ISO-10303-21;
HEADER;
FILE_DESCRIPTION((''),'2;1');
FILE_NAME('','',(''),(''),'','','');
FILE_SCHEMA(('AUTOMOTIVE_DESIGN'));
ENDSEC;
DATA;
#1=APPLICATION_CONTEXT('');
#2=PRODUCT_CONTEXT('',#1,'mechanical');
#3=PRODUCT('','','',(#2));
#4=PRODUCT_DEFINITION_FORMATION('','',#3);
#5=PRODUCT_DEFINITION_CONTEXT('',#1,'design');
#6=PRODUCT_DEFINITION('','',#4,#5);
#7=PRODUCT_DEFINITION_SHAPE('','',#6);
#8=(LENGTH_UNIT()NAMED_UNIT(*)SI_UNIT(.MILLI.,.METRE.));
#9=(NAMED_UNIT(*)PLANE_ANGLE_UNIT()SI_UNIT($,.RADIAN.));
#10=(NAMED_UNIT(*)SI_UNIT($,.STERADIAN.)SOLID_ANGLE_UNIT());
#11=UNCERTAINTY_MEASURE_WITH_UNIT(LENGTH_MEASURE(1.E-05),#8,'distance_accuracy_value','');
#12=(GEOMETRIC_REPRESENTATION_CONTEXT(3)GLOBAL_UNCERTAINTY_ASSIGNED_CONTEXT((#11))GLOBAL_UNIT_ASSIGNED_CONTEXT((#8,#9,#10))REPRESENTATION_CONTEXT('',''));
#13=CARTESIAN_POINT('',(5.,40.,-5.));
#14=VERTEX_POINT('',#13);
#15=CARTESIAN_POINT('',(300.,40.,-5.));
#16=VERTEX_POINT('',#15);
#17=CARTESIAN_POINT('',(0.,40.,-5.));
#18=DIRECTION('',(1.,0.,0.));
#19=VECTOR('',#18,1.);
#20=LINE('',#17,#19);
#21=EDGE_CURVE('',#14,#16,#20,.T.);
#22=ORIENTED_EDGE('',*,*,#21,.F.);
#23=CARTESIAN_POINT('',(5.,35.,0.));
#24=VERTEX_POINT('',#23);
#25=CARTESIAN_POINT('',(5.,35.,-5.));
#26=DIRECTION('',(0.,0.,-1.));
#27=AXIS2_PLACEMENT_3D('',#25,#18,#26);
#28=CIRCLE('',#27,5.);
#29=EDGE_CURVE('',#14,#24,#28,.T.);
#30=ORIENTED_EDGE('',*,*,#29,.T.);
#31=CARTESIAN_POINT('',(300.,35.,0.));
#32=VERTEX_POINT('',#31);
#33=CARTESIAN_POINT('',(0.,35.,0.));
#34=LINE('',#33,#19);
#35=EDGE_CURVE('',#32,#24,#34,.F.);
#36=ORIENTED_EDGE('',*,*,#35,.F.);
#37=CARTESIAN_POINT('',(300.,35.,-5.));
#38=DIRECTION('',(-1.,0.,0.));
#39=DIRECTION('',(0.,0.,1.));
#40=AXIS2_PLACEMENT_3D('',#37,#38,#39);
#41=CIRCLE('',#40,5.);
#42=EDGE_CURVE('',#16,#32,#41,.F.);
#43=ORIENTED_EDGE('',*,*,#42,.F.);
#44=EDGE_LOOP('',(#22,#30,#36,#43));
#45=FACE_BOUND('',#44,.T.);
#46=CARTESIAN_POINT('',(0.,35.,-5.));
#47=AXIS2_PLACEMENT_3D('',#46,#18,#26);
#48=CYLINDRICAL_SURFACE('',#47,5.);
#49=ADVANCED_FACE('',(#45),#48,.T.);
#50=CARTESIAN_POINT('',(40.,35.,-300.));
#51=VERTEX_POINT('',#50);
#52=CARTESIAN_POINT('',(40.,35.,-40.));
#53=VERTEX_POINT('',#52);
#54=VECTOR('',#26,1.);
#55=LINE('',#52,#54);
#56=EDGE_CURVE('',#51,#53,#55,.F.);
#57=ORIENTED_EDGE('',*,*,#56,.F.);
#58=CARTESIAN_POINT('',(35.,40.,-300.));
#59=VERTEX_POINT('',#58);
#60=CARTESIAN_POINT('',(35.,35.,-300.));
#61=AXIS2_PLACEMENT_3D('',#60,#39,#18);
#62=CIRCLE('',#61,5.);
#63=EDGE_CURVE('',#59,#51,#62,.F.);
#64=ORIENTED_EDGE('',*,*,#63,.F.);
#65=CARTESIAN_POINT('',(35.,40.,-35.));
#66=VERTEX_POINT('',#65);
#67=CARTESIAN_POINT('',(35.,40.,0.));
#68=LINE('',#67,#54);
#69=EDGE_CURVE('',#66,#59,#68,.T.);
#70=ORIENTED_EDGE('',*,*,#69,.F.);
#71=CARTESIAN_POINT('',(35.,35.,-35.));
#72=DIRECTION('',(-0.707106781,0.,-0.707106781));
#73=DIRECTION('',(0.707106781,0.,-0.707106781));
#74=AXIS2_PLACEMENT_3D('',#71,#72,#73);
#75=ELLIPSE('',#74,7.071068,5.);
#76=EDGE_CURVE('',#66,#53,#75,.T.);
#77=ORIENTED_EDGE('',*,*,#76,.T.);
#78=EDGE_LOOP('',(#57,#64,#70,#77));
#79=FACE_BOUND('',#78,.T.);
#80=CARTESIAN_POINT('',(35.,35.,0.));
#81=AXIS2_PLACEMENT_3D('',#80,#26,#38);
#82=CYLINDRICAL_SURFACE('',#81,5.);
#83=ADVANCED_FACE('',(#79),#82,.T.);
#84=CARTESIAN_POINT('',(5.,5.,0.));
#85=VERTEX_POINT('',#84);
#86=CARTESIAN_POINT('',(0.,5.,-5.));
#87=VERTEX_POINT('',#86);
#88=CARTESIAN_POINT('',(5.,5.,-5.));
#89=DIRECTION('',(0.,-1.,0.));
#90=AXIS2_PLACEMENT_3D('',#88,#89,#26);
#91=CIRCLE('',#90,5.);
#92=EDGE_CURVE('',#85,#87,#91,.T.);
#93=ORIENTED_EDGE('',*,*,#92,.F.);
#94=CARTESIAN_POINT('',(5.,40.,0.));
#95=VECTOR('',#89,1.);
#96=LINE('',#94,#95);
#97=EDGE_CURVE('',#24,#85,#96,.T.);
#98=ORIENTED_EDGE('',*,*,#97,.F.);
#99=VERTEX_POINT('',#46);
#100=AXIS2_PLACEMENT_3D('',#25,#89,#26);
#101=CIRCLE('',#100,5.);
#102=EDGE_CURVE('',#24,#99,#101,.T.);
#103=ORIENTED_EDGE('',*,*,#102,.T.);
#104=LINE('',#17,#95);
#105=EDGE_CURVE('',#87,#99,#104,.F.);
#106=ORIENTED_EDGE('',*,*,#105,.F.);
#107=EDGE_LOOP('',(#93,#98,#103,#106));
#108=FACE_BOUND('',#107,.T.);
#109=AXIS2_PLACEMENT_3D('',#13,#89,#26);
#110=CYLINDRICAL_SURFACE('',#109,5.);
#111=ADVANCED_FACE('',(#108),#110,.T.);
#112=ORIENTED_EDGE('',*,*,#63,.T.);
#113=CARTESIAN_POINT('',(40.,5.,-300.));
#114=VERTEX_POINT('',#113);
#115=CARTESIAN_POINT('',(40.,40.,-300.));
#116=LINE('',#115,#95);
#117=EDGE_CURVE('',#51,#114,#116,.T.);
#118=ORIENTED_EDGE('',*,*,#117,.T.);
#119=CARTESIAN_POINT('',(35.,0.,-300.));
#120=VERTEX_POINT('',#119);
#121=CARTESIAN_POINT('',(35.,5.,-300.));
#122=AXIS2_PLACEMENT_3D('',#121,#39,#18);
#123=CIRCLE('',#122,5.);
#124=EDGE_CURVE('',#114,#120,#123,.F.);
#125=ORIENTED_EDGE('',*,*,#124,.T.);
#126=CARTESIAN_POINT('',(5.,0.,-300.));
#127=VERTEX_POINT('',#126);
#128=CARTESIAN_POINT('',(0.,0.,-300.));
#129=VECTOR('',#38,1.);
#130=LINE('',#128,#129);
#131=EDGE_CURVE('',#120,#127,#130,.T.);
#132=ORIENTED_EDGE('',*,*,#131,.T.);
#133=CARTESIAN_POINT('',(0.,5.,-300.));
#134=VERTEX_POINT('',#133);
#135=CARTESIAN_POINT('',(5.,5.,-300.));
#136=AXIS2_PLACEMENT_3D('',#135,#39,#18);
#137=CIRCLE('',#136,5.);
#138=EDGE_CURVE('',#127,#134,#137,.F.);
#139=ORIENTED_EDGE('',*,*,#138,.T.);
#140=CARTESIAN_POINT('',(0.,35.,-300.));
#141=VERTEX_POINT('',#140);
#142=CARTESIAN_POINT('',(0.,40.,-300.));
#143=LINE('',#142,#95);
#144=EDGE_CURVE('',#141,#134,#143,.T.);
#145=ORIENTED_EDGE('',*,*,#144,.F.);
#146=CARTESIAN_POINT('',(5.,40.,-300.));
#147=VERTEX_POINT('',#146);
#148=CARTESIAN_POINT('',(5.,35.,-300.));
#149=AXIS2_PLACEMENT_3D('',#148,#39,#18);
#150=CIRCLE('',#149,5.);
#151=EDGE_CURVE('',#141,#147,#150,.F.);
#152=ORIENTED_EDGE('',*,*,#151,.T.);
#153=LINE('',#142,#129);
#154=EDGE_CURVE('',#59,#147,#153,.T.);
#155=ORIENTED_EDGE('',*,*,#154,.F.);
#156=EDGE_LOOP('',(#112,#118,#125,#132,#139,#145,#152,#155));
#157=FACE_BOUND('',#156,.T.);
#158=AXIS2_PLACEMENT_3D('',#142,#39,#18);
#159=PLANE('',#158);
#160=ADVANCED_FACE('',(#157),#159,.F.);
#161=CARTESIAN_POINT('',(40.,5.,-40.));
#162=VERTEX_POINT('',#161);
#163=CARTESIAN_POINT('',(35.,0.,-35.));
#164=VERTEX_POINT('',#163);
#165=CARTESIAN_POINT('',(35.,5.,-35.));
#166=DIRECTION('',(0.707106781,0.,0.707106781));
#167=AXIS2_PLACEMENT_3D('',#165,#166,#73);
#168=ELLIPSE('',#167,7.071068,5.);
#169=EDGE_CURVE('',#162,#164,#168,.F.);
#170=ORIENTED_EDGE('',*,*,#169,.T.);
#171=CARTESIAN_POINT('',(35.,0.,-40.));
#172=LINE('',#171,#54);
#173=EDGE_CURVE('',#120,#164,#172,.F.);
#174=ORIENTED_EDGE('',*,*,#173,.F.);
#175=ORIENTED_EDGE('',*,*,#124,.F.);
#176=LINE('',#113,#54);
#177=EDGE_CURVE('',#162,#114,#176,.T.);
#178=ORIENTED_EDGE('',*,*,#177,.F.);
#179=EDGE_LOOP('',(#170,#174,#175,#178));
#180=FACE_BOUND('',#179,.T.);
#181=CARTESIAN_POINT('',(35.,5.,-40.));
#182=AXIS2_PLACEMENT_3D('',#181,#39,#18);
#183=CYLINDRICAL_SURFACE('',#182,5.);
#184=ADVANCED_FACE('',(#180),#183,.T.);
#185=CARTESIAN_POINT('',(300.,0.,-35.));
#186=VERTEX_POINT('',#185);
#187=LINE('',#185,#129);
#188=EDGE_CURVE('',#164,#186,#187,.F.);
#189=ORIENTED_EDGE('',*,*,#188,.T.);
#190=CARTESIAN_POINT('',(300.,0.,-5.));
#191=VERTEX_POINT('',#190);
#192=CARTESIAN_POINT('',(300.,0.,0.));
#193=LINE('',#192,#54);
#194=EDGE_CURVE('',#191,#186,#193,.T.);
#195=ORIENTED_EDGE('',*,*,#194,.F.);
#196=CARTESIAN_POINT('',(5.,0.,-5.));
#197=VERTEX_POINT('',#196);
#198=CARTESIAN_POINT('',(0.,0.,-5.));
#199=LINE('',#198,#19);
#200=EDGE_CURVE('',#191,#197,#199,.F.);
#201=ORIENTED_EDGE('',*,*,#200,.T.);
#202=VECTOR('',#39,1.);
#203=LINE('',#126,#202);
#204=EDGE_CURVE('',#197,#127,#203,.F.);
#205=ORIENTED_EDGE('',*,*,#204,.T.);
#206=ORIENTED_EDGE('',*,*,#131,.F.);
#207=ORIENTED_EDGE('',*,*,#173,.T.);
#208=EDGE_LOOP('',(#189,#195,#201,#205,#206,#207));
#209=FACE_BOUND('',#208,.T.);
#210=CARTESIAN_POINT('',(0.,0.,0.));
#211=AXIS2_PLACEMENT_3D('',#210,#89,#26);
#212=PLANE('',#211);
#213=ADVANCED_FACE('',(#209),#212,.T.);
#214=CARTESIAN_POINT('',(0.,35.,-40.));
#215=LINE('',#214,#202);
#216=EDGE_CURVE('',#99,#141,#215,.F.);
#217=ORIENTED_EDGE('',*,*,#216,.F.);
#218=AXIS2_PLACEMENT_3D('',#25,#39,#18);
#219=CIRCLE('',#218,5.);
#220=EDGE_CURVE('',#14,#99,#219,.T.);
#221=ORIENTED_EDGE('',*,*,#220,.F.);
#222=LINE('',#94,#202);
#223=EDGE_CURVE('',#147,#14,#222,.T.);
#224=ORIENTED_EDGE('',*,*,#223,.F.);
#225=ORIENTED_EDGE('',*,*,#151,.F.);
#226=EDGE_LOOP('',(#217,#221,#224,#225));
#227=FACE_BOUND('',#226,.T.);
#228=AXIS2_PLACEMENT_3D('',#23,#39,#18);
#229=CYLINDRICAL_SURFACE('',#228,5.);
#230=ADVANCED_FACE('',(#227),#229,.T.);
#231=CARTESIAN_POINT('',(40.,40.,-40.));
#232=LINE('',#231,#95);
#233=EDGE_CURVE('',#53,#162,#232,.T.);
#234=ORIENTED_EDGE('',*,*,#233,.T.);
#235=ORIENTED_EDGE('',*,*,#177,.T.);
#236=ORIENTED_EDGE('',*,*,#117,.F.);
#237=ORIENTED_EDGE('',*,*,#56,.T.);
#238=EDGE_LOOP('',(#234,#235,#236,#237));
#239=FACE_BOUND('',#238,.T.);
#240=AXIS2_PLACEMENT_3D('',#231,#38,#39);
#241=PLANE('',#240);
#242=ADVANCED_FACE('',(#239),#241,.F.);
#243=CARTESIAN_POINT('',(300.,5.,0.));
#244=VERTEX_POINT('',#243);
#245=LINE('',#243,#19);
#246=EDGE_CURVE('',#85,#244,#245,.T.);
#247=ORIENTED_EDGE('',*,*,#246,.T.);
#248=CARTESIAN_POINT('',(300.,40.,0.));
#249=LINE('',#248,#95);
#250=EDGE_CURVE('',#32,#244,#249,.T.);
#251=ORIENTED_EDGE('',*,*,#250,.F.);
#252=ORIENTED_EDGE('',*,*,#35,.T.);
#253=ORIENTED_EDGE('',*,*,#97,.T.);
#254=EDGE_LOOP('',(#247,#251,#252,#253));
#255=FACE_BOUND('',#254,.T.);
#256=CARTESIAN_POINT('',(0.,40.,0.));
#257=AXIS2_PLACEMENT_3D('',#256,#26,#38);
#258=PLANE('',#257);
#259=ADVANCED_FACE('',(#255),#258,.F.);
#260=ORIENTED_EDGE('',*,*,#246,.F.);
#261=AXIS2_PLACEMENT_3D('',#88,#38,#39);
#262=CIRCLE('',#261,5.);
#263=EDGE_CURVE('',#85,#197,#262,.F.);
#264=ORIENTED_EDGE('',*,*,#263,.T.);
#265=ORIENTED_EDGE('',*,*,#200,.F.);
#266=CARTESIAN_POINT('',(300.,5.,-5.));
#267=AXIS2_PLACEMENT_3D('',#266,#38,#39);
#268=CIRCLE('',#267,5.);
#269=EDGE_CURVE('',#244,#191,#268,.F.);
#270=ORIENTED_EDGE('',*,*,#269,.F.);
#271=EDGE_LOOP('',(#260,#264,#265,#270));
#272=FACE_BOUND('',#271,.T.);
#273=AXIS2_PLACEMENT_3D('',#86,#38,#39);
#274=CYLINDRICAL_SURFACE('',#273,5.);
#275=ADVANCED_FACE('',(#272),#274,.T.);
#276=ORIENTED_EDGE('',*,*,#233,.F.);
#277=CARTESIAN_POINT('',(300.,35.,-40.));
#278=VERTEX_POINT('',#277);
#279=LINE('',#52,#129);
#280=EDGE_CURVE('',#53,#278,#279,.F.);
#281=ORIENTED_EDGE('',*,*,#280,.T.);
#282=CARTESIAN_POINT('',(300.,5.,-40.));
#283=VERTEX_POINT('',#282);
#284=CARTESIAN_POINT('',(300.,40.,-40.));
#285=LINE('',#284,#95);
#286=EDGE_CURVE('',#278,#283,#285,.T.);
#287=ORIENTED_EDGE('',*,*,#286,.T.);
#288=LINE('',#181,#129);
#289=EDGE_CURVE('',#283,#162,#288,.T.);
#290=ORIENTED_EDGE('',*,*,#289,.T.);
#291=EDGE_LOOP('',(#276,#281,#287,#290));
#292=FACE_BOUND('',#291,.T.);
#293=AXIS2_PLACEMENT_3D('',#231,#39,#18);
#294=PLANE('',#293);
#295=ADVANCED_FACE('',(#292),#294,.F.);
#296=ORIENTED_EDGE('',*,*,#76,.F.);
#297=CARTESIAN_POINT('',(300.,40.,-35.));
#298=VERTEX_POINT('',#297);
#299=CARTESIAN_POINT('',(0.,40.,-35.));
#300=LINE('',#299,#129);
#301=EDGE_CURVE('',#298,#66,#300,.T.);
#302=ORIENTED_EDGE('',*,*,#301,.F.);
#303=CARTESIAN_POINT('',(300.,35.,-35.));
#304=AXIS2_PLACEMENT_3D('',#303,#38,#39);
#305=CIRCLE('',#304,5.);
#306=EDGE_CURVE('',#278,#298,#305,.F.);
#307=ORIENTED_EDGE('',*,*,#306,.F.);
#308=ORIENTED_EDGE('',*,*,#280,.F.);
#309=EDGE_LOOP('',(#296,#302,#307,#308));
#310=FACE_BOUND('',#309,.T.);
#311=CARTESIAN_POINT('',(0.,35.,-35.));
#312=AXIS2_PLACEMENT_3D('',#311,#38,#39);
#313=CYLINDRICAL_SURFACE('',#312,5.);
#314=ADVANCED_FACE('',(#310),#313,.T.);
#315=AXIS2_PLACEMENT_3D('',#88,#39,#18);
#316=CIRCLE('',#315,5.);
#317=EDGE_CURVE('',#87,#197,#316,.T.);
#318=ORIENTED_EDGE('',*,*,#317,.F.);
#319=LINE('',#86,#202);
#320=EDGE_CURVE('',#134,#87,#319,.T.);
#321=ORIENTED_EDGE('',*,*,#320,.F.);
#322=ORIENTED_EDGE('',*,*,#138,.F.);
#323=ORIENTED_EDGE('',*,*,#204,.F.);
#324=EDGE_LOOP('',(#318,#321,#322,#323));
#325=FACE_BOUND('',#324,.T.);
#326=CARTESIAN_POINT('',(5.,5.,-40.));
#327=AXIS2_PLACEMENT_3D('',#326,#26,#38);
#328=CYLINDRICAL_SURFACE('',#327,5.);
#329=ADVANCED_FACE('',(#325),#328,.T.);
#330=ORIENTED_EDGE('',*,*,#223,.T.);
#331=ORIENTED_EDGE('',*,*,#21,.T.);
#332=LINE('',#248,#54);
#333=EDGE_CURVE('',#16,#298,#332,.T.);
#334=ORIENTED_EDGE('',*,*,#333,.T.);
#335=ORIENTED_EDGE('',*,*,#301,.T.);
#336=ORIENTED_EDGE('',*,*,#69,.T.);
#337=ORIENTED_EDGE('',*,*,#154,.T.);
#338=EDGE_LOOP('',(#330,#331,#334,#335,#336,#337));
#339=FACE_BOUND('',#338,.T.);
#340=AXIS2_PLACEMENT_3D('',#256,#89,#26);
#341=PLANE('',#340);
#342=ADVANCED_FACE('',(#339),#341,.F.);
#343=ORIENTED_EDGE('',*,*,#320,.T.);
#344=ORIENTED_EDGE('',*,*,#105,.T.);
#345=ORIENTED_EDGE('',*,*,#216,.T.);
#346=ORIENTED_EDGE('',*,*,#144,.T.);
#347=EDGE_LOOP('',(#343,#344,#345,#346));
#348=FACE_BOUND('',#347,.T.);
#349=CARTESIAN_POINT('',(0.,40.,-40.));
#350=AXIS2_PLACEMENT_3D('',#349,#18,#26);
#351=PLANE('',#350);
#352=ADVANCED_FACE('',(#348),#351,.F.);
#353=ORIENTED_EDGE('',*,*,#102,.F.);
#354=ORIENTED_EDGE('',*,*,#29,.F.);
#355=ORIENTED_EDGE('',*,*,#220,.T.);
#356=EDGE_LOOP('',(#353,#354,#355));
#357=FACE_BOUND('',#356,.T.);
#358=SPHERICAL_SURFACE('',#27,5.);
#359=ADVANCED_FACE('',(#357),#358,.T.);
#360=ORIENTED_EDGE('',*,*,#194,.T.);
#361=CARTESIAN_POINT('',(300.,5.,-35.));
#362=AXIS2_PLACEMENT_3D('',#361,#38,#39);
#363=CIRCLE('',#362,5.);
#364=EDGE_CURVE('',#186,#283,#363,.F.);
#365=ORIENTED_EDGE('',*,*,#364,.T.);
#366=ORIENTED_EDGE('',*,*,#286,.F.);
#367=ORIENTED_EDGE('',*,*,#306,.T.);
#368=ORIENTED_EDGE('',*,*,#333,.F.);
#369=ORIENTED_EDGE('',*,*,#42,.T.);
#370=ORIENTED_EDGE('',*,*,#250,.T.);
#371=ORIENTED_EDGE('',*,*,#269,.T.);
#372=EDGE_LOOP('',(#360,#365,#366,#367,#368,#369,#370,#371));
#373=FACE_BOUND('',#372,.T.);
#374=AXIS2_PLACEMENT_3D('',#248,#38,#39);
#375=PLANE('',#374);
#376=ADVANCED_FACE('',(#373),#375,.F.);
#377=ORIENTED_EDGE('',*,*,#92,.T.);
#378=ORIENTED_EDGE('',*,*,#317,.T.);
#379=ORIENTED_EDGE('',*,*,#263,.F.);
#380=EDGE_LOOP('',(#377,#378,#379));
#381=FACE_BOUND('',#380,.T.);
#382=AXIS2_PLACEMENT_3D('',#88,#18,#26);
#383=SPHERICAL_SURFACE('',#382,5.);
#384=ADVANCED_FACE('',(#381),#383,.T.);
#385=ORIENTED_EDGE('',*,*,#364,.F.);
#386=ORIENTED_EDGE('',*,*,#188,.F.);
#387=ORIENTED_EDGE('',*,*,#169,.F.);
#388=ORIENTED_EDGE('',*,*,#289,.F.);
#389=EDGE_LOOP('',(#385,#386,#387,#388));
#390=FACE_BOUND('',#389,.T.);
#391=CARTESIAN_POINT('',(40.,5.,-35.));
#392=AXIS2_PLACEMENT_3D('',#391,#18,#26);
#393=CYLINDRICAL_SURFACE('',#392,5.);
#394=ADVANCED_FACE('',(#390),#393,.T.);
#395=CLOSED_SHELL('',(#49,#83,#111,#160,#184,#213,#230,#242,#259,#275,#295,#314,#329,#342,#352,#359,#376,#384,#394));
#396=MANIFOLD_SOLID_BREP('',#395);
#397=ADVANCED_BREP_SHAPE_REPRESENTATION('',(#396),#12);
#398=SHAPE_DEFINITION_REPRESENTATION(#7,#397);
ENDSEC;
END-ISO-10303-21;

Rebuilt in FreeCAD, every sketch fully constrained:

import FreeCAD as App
import Part
import Sketcher
from FreeCAD import Vector
Q = App.Units.Quantity


def edges_at(feature, points):
    """Names of the edges that pass closest to the given points."""
    edges = feature.Shape.Edges
    near = lambda p: min(range(len(edges)), key=lambda i: edges[i].distToShape(Part.Vertex(*p))[0])
    return sorted({f"Edge{near(p) + 1}" for p in points})

doc = App.newDocument("Part")
body = doc.addObject("PartDesign::Body", "Body")

sketch1 = body.newObject("Sketcher::SketchObject", "Sketch")
sketch1.AttachmentSupport = (doc.getObject("XZ_Plane"), [""])
sketch1.MapMode = "FlatFace"
sketch1.addGeometry([
    Part.LineSegment(Vector(0, 0, 0), Vector(300, 0, 0)),
    Part.LineSegment(Vector(300, 0, 0), Vector(300, -40, 0)),
    Part.LineSegment(Vector(300, -40, 0), Vector(40, -40, 0)),
    Part.LineSegment(Vector(40, -40, 0), Vector(40, -300, 0)),
    Part.LineSegment(Vector(40, -300, 0), Vector(0, -300, 0)),
    Part.LineSegment(Vector(0, -300, 0), Vector(0, 0, 0)),
], False)
sketch1.addConstraint([
    Sketcher.Constraint("Coincident", 0, 2, 1, 1),
    Sketcher.Constraint("Coincident", 1, 2, 2, 1),
    Sketcher.Constraint("Coincident", 2, 2, 3, 1),
    Sketcher.Constraint("Coincident", 3, 2, 4, 1),
    Sketcher.Constraint("Coincident", 4, 2, 5, 1),
    Sketcher.Constraint("Coincident", 5, 2, 0, 1),
    Sketcher.Constraint("Horizontal", 0),
    Sketcher.Constraint("Vertical", 1),
    Sketcher.Constraint("Horizontal", 2),
    Sketcher.Constraint("Vertical", 3),
    Sketcher.Constraint("Horizontal", 4),
    Sketcher.Constraint("Vertical", 5),
    Sketcher.Constraint("Coincident", 5, 2, -1, 1),
    Sketcher.Constraint("Equal", 4, 1),
    Sketcher.Constraint("Equal", 2, 3),
    Sketcher.Constraint("DistanceX", 0, 1, 0, 2, Q("300 mm")),
    Sketcher.Constraint("DistanceX", 2, 2, 2, 1, Q("260 mm")),
])
pad1 = body.newObject("PartDesign::Pad", "Pad")
pad1.Profile = sketch1
pad1.Length = 40
pad1.Reversed = True
doc.recompute()

fillet = body.newObject("PartDesign::Fillet", "Fillet")
fillet.Base = (pad1, edges_at(pad1, [(150, 40, 0)]))
fillet.Radius = 5
doc.recompute()

fillet2 = body.newObject("PartDesign::Fillet", "Fillet001")
fillet2.Base = (fillet, edges_at(fillet, [
    (170, 40, -40),
    (40, 40, -170),
    (40, 0, -170),
    (150, 0, 0),
]))
fillet2.Radius = 5
doc.recompute()

fillet3 = body.newObject("PartDesign::Fillet", "Fillet002")
fillet3.Base = (fillet2, edges_at(fillet2, [
    (0, 1.464, -1.464),
    (0, 20, 0),
    (0, 38.536, -1.464),
    (167.5, 0, -40),
    (0, 0, -152.5),
    (0, 40, -152.5),
]))
fillet3.Radius = 5

doc.recompute()
